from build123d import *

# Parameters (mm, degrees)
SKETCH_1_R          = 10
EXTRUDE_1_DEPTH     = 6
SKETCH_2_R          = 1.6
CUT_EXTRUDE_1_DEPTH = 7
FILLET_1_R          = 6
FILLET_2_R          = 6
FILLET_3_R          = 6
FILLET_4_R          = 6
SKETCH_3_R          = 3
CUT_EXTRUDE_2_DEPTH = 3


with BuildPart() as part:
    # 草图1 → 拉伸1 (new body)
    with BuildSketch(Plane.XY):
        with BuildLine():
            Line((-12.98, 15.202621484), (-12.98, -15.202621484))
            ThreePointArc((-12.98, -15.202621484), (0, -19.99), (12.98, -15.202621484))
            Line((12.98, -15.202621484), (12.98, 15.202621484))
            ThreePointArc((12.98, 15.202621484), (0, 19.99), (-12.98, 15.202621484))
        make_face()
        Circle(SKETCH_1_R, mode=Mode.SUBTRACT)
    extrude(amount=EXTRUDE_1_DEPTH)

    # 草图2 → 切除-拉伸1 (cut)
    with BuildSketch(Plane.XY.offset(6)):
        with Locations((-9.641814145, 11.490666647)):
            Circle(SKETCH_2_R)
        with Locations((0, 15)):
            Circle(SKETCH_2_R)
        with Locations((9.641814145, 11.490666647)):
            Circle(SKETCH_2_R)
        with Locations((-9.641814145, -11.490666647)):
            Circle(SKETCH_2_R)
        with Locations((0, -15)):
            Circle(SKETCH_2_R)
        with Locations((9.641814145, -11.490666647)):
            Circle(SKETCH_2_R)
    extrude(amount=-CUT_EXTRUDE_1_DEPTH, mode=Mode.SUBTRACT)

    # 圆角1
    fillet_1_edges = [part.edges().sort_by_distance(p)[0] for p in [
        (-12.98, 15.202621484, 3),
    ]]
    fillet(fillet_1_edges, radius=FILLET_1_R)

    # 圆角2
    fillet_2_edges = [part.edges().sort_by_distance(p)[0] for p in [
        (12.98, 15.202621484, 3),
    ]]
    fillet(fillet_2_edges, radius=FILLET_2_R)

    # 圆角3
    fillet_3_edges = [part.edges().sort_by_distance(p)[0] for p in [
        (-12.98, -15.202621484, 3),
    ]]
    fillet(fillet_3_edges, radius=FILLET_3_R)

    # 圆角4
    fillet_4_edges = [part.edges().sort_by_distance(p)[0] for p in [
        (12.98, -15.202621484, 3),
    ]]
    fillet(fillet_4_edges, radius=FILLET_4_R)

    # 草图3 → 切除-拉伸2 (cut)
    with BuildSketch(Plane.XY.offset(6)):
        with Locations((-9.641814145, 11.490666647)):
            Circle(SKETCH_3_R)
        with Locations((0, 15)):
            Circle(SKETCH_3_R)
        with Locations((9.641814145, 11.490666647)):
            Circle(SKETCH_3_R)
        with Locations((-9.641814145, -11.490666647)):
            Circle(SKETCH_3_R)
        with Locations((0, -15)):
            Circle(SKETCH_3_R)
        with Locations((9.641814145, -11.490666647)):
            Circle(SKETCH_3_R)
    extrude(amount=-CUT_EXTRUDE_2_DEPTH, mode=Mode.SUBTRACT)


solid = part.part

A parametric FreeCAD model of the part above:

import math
import FreeCAD as App
import Part
import Sketcher
from FreeCAD import Vector


def edges_at(feature, points):
    """Names of the edges that pass closest to the given points."""
    edges = feature.Shape.Edges
    near = lambda p: min(range(len(edges)), key=lambda i: edges[i].distToShape(Part.Vertex(*p))[0])
    return sorted({f"Edge{near(p) + 1}" for p in points})

doc = App.newDocument("Part")
body = doc.addObject("PartDesign::Body", "Body")

# Sketch on XY plane
sketch1 = body.newObject("Sketcher::SketchObject", "Sketch")
sketch1.AttachmentSupport = (doc.getObject("XY_Plane"), [""])
sketch1.MapMode = "FlatFace"
sketch1.addGeometry(Part.LineSegment(Vector(-12.98, 15.202621, 0), Vector(-12.98, -15.202621, 0)), False)
sketch1.addGeometry(Part.ArcOfCircle(Part.Circle(Vector(0, 0, 0), Vector(0, 0, 1), 19.99), math.radians(-130.490704), math.radians(-49.509296)), False)
sketch1.addGeometry(Part.LineSegment(Vector(12.98, -15.202621, 0), Vector(12.98, 15.202621, 0)), False)
sketch1.addGeometry(Part.ArcOfCircle(Part.Circle(Vector(0, 0, 0), Vector(0, 0, 1), 19.99), math.radians(49.509296), math.radians(130.490704)), False)
sketch1.addGeometry(Part.Circle(Vector(0, 0, 0), Vector(0, 0, 1), 10), False)
sketch1.addConstraint(Sketcher.Constraint("Coincident", 0, 2, 1, 1))
sketch1.addConstraint(Sketcher.Constraint("Coincident", 1, 2, 2, 1))
sketch1.addConstraint(Sketcher.Constraint("Coincident", 2, 2, 3, 1))
sketch1.addConstraint(Sketcher.Constraint("Coincident", 3, 2, 0, 1))
sketch1.addConstraint(Sketcher.Constraint("Vertical", 0))
sketch1.addConstraint(Sketcher.Constraint("Vertical", 2))
sketch1.addConstraint(Sketcher.Constraint("Coincident", 1, 3, -1, 1))
sketch1.addConstraint(Sketcher.Constraint("Coincident", 3, 3, -1, 1))
sketch1.addConstraint(Sketcher.Constraint("Coincident", 4, 3, -1, 1))
sketch1.addConstraint(Sketcher.Constraint("Equal", 1, 3))
sketch1.addConstraint(Sketcher.Constraint("Horizontal", 0, 2, 1, 2))
sketch1.addConstraint(Sketcher.Constraint("Diameter", 4, 20.0))
sketch1.addConstraint(Sketcher.Constraint("Radius", 1, 19.99))
sketch1.addConstraint(Sketcher.Constraint("DistanceX", 0, 2, -1, 1, 12.98))
pad1 = body.newObject("PartDesign::Pad", "Pad")
pad1.Profile = sketch1
pad1.Length = 6

# Sketch on XY plane
sketch2 = body.newObject("Sketcher::SketchObject", "Sketch001")
sketch2.AttachmentSupport = (doc.getObject("XY_Plane"), [""])
sketch2.MapMode = "FlatFace"
sketch2.AttachmentOffset = App.Placement(Vector(0, 0, 6), App.Rotation())
sketch2.addGeometry(Part.Circle(Vector(-9.641814, 11.490667, 0), Vector(0, 0, 1), 1.6), False)
sketch2.addGeometry(Part.Circle(Vector(0, 15, 0), Vector(0, 0, 1), 1.6), False)
sketch2.addGeometry(Part.Circle(Vector(9.641814, 11.490667, 0), Vector(0, 0, 1), 1.6), False)
sketch2.addGeometry(Part.Circle(Vector(-9.641814, -11.490667, 0), Vector(0, 0, 1), 1.6), False)
sketch2.addGeometry(Part.Circle(Vector(0, -15, 0), Vector(0, 0, 1), 1.6), False)
sketch2.addGeometry(Part.Circle(Vector(9.641814, -11.490667, 0), Vector(0, 0, 1), 1.6), False)
sketch2.addConstraint(Sketcher.Constraint("Equal", 0, 1))
sketch2.addConstraint(Sketcher.Constraint("Equal", 1, 2))
sketch2.addConstraint(Sketcher.Constraint("Equal", 2, 3))
sketch2.addConstraint(Sketcher.Constraint("Equal", 3, 4))
sketch2.addConstraint(Sketcher.Constraint("Equal", 4, 5))
sketch2.addConstraint(Sketcher.Constraint("Symmetric", 2, 3, 3, 3, -1, 1))
sketch2.addConstraint(Sketcher.Constraint("Symmetric", 1, 3, 4, 3, -1, 1))
sketch2.addConstraint(Sketcher.Constraint("Symmetric", 0, 3, 5, 3, -1, 1))
sketch2.addConstraint(Sketcher.Constraint("Symmetric", 0, 3, 2, 3, -2))
sketch2.addConstraint(Sketcher.Constraint("PointOnObject", 1, 3, -2))
sketch2.addConstraint(Sketcher.Constraint("Diameter", 0, 3.2))
sketch2.addConstraint(Sketcher.Constraint("DistanceY", -1, 1, 1, 3, 15.0))
sketch2.addConstraint(Sketcher.Constraint("DistanceX", 0, 3, 2, 3, 19.283628))
sketch2.addConstraint(Sketcher.Constraint("DistanceY", -1, 1, 0, 3, 11.490667))
pocket1 = body.newObject("PartDesign::Pocket", "Pocket")
pocket1.Profile = sketch2
pocket1.Length = 7
doc.recompute()

fillet = body.newObject("PartDesign::Fillet", "Fillet")
fillet.Base = (pocket1, edges_at(pocket1, [(-12.98, 15.203, 3)]))
fillet.Radius = 6
doc.recompute()

fillet2 = body.newObject("PartDesign::Fillet", "Fillet001")
fillet2.Base = (fillet, edges_at(fillet, [(12.98, 15.203, 3)]))
fillet2.Radius = 6
doc.recompute()

fillet3 = body.newObject("PartDesign::Fillet", "Fillet002")
fillet3.Base = (fillet2, edges_at(fillet2, [(-12.98, -15.203, 3)]))
fillet3.Radius = 6
doc.recompute()

fillet4 = body.newObject("PartDesign::Fillet", "Fillet003")
fillet4.Base = (fillet3, edges_at(fillet3, [(12.98, -15.203, 3)]))
fillet4.Radius = 6

# Sketch on XY plane
sketch3 = body.newObject("Sketcher::SketchObject", "Sketch002")
sketch3.AttachmentSupport = (doc.getObject("XY_Plane"), [""])
sketch3.MapMode = "FlatFace"
sketch3.AttachmentOffset = App.Placement(Vector(0, 0, 6), App.Rotation())
sketch3.addGeometry(Part.Circle(Vector(-9.641814, 11.490667, 0), Vector(0, 0, 1), 3), False)
sketch3.addGeometry(Part.Circle(Vector(0, 15, 0), Vector(0, 0, 1), 3), False)
sketch3.addGeometry(Part.Circle(Vector(9.641814, 11.490667, 0), Vector(0, 0, 1), 3), False)
sketch3.addGeometry(Part.Circle(Vector(-9.641814, -11.490667, 0), Vector(0, 0, 1), 3), False)
sketch3.addGeometry(Part.Circle(Vector(0, -15, 0), Vector(0, 0, 1), 3), False)
sketch3.addGeometry(Part.Circle(Vector(9.641814, -11.490667, 0), Vector(0, 0, 1), 3), False)
sketch3.addConstraint(Sketcher.Constraint("Equal", 0, 1))
sketch3.addConstraint(Sketcher.Constraint("Equal", 1, 2))
sketch3.addConstraint(Sketcher.Constraint("Equal", 2, 3))
sketch3.addConstraint(Sketcher.Constraint("Equal", 3, 4))
sketch3.addConstraint(Sketcher.Constraint("Equal", 4, 5))
sketch3.addConstraint(Sketcher.Constraint("Symmetric", 2, 3, 3, 3, -1, 1))
sketch3.addConstraint(Sketcher.Constraint("Symmetric", 1, 3, 4, 3, -1, 1))
sketch3.addConstraint(Sketcher.Constraint("Symmetric", 0, 3, 5, 3, -1, 1))
sketch3.addConstraint(Sketcher.Constraint("Symmetric", 0, 3, 2, 3, -2))
sketch3.addConstraint(Sketcher.Constraint("PointOnObject", 1, 3, -2))
sketch3.addConstraint(Sketcher.Constraint("Diameter", 0, 6.0))
sketch3.addConstraint(Sketcher.Constraint("DistanceY", -1, 1, 1, 3, 15.0))
sketch3.addConstraint(Sketcher.Constraint("DistanceX", 0, 3, 2, 3, 19.283628))
sketch3.addConstraint(Sketcher.Constraint("DistanceY", -1, 1, 0, 3, 11.490667))
pocket2 = body.newObject("PartDesign::Pocket", "Pocket001")
pocket2.Profile = sketch3
pocket2.Length = 3

doc.recompute()
